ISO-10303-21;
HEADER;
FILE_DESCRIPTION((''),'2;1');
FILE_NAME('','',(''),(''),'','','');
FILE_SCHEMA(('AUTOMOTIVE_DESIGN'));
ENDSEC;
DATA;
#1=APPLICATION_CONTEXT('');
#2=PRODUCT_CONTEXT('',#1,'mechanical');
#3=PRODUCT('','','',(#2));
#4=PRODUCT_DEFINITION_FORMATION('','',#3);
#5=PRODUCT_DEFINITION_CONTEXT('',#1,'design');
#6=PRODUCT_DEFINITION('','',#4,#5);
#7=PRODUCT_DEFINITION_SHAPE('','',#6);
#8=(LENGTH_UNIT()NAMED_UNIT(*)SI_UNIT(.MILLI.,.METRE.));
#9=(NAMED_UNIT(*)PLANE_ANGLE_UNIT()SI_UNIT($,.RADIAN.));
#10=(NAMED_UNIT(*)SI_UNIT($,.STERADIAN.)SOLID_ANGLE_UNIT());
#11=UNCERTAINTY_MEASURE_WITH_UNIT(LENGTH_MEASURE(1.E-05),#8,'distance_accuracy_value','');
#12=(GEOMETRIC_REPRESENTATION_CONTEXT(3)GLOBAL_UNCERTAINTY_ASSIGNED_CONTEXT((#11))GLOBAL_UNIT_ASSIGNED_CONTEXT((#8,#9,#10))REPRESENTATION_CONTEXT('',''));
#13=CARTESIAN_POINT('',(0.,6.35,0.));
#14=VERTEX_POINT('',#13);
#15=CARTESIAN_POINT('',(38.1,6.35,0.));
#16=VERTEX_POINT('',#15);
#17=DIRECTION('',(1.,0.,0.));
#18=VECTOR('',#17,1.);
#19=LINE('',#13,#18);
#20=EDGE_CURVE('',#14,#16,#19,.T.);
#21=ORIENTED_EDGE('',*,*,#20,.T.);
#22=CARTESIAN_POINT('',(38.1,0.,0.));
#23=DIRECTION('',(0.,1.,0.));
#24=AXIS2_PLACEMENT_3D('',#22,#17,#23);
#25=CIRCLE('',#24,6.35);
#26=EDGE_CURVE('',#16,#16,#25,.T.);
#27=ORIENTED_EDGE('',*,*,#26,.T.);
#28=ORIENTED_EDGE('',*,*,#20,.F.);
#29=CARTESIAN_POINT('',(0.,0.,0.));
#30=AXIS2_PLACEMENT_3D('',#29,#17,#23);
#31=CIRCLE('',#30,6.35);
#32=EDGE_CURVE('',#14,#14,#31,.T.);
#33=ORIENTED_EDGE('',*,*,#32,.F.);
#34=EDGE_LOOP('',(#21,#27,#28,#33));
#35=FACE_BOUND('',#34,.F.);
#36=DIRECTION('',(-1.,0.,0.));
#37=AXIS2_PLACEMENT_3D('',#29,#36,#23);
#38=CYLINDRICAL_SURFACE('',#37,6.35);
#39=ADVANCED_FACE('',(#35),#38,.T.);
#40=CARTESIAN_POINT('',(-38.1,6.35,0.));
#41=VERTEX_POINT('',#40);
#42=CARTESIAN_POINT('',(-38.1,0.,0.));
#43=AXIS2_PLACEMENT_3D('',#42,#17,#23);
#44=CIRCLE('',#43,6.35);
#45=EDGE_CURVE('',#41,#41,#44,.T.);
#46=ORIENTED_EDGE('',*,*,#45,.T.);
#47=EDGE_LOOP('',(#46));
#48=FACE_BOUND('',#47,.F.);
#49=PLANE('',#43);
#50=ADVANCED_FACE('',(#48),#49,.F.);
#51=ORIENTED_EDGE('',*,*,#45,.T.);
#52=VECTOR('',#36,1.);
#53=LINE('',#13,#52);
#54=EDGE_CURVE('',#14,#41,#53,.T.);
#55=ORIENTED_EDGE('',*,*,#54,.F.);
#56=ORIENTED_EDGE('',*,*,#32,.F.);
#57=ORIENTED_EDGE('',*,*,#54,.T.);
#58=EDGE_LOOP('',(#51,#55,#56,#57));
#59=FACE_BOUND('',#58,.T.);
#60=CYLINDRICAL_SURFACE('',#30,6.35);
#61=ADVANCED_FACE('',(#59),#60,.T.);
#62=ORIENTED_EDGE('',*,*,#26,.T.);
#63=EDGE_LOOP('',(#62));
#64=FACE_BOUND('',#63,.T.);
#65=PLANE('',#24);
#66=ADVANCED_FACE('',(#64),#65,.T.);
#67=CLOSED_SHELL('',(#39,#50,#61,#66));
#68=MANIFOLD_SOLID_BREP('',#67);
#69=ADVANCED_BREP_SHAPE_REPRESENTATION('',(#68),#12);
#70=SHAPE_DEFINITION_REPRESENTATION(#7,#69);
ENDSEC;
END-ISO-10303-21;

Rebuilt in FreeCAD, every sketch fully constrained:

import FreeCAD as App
import Part
import Sketcher
Q = App.Units.Quantity

doc = App.newDocument("Part")
body = doc.addObject("PartDesign::Body", "Body")

# Sketch on YZ plane
sketch1 = body.newObject("Sketcher::SketchObject", "Sketch")
sketch1.AttachmentSupport = (doc.getObject("YZ_Plane"), [""])
sketch1.MapMode = "FlatFace"
sketch1.addGeometry(Part.Circle(App.Vector(0, 0, 0), App.Vector(0, 0, 1), 6), False)
sketch1.addConstraint([
    Sketcher.Constraint("Coincident", 0, 3, -1, 1),
    Sketcher.Constraint("Diameter", 0, Q("0.5 in")),
])
pad1 = body.newObject("PartDesign::Pad", "Pad")
pad1.Profile = sketch1
pad1.Length = Q("3 in")
pad1.Midplane = True

doc.recompute()
